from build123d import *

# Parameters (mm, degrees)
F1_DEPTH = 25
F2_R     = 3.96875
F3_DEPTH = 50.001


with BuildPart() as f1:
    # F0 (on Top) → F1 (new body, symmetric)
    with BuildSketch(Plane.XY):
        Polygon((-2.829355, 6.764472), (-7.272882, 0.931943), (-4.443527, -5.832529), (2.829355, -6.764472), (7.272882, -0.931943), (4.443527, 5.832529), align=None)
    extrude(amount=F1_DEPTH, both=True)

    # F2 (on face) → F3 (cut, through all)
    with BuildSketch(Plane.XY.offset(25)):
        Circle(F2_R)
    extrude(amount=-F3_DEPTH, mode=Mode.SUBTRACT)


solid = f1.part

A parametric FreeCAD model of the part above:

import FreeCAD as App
import Part
import Sketcher
Q = App.Units.Quantity

doc = App.newDocument("Part")
params = doc.addObject("Spreadsheet::Sheet", "Params")
for row, (alias, value) in enumerate([
    ("pad1_length", "50 mm"),
], start=1):
    params.set(f"A{row}", alias)
    params.set(f"B{row}", "=" + value)
    params.setAlias(f"B{row}", alias)

body = doc.addObject("PartDesign::Body", "Body")

sketch1 = body.newObject("Sketcher::SketchObject", "Sketch")
sketch1.AttachmentSupport = (doc.getObject("XY_Plane"), [""])
sketch1.MapMode = "FlatFace"
sketch1.addGeometry([
    Part.LineSegment(App.Vector(-3, 7, 0), App.Vector(-7, 1, 0)),
    Part.LineSegment(App.Vector(-7, 1, 0), App.Vector(-4, -6, 0)),
    Part.LineSegment(App.Vector(-4, -6, 0), App.Vector(3, -7, 0)),
    Part.LineSegment(App.Vector(3, -7, 0), App.Vector(7, -1, 0)),
    Part.LineSegment(App.Vector(7, -1, 0), App.Vector(4, 6, 0)),
    Part.LineSegment(App.Vector(4, 6, 0), App.Vector(-3, 7, 0)),
], False)
sketch1.addConstraint([
    Sketcher.Constraint("Coincident", 0, 2, 1, 1),
    Sketcher.Constraint("Coincident", 1, 2, 2, 1),
    Sketcher.Constraint("Coincident", 2, 2, 3, 1),
    Sketcher.Constraint("Coincident", 3, 2, 4, 1),
    Sketcher.Constraint("Coincident", 4, 2, 5, 1),
    Sketcher.Constraint("Coincident", 5, 2, 0, 1),
    Sketcher.Constraint("Symmetric", 0, 2, 3, 2, -1, 1),
    Sketcher.Constraint("Symmetric", 1, 2, 4, 2, -1, 1),
    Sketcher.Constraint("Symmetric", 2, 2, 5, 2, -1, 1),
    Sketcher.Constraint("Equal", 0, 1),
    Sketcher.Constraint("Equal", 1, 2),
    Sketcher.Constraint("DistanceY", 2, 2, 4, 2, Q("12.597001 mm")),
    Sketcher.Constraint("Distance", 1, Q("7.332348 mm")),
    Sketcher.Constraint("DistanceY", 1, 2, -1, 1, Q("5.832529 mm")),
    Sketcher.Constraint("DistanceY", 1, 2, 0, 2, Q("6.764472 mm")),
])
pad1 = body.newObject("PartDesign::Pad", "Pad")
pad1.Profile = sketch1
pad1.setExpression("Length", "Params.pad1_length")
pad1.Midplane = True

sketch2 = body.newObject("Sketcher::SketchObject", "Sketch001")
sketch2.AttachmentSupport = (doc.getObject("XY_Plane"), [""])
sketch2.MapMode = "FlatFace"
sketch2.AttachmentOffset = App.Placement(App.Vector(0, 0, 25), App.Rotation())
sketch2.addGeometry(Part.Circle(App.Vector(0, 0, 0), App.Vector(0, 0, 1), 4), False)
sketch2.addConstraint([
    Sketcher.Constraint("Coincident", 0, 3, -1, 1),
    Sketcher.Constraint("Diameter", 0, Q("7.9375 mm")),
])
pocket1 = body.newObject("PartDesign::Pocket", "Pocket")
pocket1.Profile = sketch2
pocket1.Type = "ThroughAll"

doc.recompute()
